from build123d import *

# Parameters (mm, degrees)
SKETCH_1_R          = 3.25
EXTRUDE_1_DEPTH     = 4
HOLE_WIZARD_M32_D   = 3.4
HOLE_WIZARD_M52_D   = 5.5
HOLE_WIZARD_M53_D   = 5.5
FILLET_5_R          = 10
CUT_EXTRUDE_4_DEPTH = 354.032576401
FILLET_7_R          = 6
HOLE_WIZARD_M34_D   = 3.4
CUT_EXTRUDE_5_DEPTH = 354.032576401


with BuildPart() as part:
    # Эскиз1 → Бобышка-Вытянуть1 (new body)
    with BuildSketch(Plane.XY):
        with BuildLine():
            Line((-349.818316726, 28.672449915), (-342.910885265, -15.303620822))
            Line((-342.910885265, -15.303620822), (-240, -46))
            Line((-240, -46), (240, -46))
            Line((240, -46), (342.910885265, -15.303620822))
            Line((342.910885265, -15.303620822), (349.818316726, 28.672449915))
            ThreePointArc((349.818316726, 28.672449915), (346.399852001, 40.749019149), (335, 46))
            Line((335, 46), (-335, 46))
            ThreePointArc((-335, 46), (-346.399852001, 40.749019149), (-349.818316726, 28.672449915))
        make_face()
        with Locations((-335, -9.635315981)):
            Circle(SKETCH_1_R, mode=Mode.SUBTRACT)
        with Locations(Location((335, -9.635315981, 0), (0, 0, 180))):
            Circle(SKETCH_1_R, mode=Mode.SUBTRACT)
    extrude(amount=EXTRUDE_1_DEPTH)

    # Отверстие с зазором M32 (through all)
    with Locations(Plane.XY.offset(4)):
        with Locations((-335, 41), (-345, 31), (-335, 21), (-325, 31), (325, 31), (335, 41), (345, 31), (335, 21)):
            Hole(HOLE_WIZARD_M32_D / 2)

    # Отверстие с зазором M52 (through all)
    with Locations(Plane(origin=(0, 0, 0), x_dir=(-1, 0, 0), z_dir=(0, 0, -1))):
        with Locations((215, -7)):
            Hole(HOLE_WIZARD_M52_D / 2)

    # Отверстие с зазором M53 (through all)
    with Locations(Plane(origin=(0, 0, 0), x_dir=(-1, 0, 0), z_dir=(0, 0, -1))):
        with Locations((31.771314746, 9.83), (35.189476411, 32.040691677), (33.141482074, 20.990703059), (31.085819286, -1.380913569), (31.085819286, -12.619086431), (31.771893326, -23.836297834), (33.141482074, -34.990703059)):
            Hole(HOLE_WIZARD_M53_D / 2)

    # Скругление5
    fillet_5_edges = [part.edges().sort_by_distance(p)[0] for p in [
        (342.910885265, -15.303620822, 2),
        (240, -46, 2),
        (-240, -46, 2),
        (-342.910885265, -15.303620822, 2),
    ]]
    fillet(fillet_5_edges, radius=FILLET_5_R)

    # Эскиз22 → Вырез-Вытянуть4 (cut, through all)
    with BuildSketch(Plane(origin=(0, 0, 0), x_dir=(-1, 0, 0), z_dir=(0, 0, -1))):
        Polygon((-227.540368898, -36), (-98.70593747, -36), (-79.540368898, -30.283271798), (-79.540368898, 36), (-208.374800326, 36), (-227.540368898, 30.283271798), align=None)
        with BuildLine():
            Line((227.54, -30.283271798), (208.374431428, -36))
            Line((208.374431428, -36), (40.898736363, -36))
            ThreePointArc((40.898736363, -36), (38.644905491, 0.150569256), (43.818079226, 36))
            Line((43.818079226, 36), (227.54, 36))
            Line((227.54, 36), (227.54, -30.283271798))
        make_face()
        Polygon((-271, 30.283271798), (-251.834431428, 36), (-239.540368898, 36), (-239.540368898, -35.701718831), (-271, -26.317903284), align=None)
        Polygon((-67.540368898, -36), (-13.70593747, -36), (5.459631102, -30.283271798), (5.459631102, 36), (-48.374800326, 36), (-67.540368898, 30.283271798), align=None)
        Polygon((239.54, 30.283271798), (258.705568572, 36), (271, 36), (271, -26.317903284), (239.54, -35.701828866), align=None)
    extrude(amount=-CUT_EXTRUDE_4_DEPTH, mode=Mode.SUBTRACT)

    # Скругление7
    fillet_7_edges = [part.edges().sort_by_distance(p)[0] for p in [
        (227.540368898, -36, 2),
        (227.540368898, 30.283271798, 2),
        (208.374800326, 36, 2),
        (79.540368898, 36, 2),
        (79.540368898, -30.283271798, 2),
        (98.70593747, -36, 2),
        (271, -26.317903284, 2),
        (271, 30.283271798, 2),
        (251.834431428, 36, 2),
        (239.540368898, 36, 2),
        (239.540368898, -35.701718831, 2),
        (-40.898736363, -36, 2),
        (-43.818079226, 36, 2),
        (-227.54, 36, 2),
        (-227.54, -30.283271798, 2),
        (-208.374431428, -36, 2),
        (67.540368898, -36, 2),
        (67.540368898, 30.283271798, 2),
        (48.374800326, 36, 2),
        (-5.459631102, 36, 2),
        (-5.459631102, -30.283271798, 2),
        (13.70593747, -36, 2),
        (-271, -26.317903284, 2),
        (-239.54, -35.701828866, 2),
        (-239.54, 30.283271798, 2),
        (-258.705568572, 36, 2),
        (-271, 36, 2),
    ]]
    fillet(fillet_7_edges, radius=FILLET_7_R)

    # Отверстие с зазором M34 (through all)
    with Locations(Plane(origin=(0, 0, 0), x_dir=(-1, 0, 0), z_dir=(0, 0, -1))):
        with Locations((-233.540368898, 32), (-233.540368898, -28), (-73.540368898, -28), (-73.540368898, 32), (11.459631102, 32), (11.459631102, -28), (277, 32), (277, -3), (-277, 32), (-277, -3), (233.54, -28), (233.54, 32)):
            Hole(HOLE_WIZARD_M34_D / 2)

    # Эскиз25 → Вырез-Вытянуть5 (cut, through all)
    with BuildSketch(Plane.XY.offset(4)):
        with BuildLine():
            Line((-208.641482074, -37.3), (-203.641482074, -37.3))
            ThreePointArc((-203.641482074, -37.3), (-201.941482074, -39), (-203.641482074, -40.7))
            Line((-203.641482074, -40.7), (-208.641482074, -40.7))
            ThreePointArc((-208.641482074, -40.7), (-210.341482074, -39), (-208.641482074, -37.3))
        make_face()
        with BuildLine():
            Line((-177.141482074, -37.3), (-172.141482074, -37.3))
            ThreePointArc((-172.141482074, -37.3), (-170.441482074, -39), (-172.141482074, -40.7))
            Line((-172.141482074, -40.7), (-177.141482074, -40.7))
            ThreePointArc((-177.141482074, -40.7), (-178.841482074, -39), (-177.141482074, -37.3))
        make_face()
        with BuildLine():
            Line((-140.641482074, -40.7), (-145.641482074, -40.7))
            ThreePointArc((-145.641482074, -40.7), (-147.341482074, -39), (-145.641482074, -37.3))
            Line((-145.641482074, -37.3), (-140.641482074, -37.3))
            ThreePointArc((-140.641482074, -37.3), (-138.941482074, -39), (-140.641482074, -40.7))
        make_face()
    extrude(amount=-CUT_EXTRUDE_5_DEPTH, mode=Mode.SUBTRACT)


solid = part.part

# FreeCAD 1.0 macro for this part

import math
import FreeCAD as App
import Part
import Sketcher
from FreeCAD import Vector


def edges_at(feature, points):
    """Names of the edges that pass closest to the given points."""
    edges = feature.Shape.Edges
    near = lambda p: min(range(len(edges)), key=lambda i: edges[i].distToShape(Part.Vertex(*p))[0])
    return sorted({f"Edge{near(p) + 1}" for p in points})


def add_polygon(sketch, points):
    """Adds a closed chain of lines whose ends are joined by coincident constraints."""
    first, n = sketch.GeometryCount, len(points)
    for a, b in zip(points, points[1:] + points[:1]):
        sketch.addGeometry(Part.LineSegment(App.Vector(*a, 0), App.Vector(*b, 0)), False)
    for i in range(n):
        sketch.addConstraint(Sketcher.Constraint("Coincident", first + i, 2, first + (i + 1) % n, 1))

doc = App.newDocument("Part")
body = doc.addObject("PartDesign::Body", "Body")

# Sketch on XY plane
sketch1 = body.newObject("Sketcher::SketchObject", "Sketch")
sketch1.AttachmentSupport = (doc.getObject("XY_Plane"), [""])
sketch1.MapMode = "FlatFace"
sketch1.addGeometry([
    Part.LineSegment(Vector(-349.818317, 28.67245, 0), Vector(-342.910885, -15.303621, 0)),  # 0
    Part.LineSegment(Vector(-342.910885, -15.303621, 0), Vector(-240, -46, 0)),  # 1
    Part.LineSegment(Vector(-240, -46, 0), Vector(240, -46, 0)),  # 2
    Part.LineSegment(Vector(240, -46, 0), Vector(342.910885, -15.303621, 0)),  # 3
    Part.LineSegment(Vector(342.910885, -15.303621, 0), Vector(349.818317, 28.67245, 0)),  # 4
    Part.ArcOfCircle(Part.Circle(Vector(335, 31, 0), Vector(0, 0, 1), 15), math.radians(-8.926656), math.radians(90)),  # 5
    Part.LineSegment(Vector(335, 46, 0), Vector(-335, 46, 0)),  # 6
    Part.ArcOfCircle(Part.Circle(Vector(-335, 31, 0), Vector(0, 0, 1), 15), math.radians(90), math.radians(188.926656)),  # 7
    Part.Circle(Vector(-335, -9.635316, 0), Vector(0, 0, 1), 3.25),  # 8
    Part.Circle(Vector(335, -9.635316, 0), Vector(0, 0, 1), 3.25),  # 9
], False)
sketch1.addConstraint([
    Sketcher.Constraint("Coincident", 0, 2, 1, 1),
    Sketcher.Constraint("Coincident", 1, 2, 2, 1),
    Sketcher.Constraint("Coincident", 2, 2, 3, 1),
    Sketcher.Constraint("Coincident", 3, 2, 4, 1),
    Sketcher.Constraint("Tangent", 4, 2, 5, 1),
    Sketcher.Constraint("Tangent", 5, 2, 6, 1),
    Sketcher.Constraint("Tangent", 6, 2, 7, 1),
    Sketcher.Constraint("Tangent", 7, 2, 0, 1),
    Sketcher.Constraint("Horizontal", 2),
    Sketcher.Constraint("Horizontal", 6),
    Sketcher.Constraint("Equal", 5, 7),
    Sketcher.Constraint("Equal", 8, 9),
    Sketcher.Constraint("Symmetric", 8, 3, 9, 3, -2),
    Sketcher.Constraint("Symmetric", 0, 2, 3, 2, -2),
    Sketcher.Constraint("Horizontal", 4, 2, 7, 2),
    Sketcher.Constraint("Vertical", 7, 3, 8, 3),
    Sketcher.Constraint("Equal", 1, 3),
    Sketcher.Constraint("Radius", 5, 15.0),
    Sketcher.Constraint("Diameter", 8, 6.5),
    Sketcher.Constraint("DistanceX", 2, 1, 2, 2, 480.0),
    Sketcher.Constraint("DistanceX", 6, 2, 6, 1, 670.0),
    Sketcher.Constraint("DistanceY", -1, 1, 5, 3, 31.0),
    Sketcher.Constraint("DistanceY", 1, 2, -1, 1, 46.0),
    Sketcher.Constraint("Distance", 0, 44.515249),
    Sketcher.Constraint("DistanceY", 0, 2, -1, 1, 15.303621),
    Sketcher.Constraint("DistanceY", 8, 3, -1, 1, 9.635316),
])
pad1 = body.newObject("PartDesign::Pad", "Pad")
pad1.Profile = sketch1
pad1.Length = 4

# Sketch on XY plane
sketch2 = body.newObject("Sketcher::SketchObject", "Sketch001")
sketch2.AttachmentSupport = (doc.getObject("XY_Plane"), [""])
sketch2.MapMode = "FlatFace"
sketch2.AttachmentOffset = App.Placement(Vector(0, 0, 4), App.Rotation())
sketch2.addGeometry([
    Part.Circle(Vector(-335, 41, 0), Vector(0, 0, 1), 1.7),  # 0
    Part.Circle(Vector(-345, 31, 0), Vector(0, 0, 1), 1.7),  # 1
    Part.Circle(Vector(-335, 21, 0), Vector(0, 0, 1), 1.7),  # 2
    Part.Circle(Vector(-325, 31, 0), Vector(0, 0, 1), 1.7),  # 3
    Part.Circle(Vector(325, 31, 0), Vector(0, 0, 1), 1.7),  # 4
    Part.Circle(Vector(335, 41, 0), Vector(0, 0, 1), 1.7),  # 5
    Part.Circle(Vector(345, 31, 0), Vector(0, 0, 1), 1.7),  # 6
    Part.Circle(Vector(335, 21, 0), Vector(0, 0, 1), 1.7),  # 7
], False)
sketch2.addConstraint([
    Sketcher.Constraint("Equal", 0, 1),
    Sketcher.Constraint("Equal", 1, 2),
    Sketcher.Constraint("Equal", 2, 3),
    Sketcher.Constraint("Equal", 3, 4),
    Sketcher.Constraint("Equal", 4, 5),
    Sketcher.Constraint("Equal", 5, 6),
    Sketcher.Constraint("Equal", 6, 7),
    Sketcher.Constraint("Symmetric", 3, 3, 4, 3, -2),
    Sketcher.Constraint("Symmetric", 0, 3, 5, 3, -2),
    Sketcher.Constraint("Symmetric", 1, 3, 6, 3, -2),
    Sketcher.Constraint("Symmetric", 2, 3, 7, 3, -2),
    Sketcher.Constraint("Horizontal", 1, 3, 3, 3),
    Sketcher.Constraint("Vertical", 0, 3, 2, 3),
    Sketcher.Constraint("Diameter", 0, 3.4),
    Sketcher.Constraint("DistanceX", 0, 3, -1, 1, 335.0),
    Sketcher.Constraint("DistanceY", -1, 1, 0, 3, 41.0),
    Sketcher.Constraint("DistanceX", 1, 3, -1, 1, 345.0),
    Sketcher.Constraint("DistanceY", -1, 1, 1, 3, 31.0),
    Sketcher.Constraint("DistanceY", -1, 1, 2, 3, 21.0),
    Sketcher.Constraint("DistanceX", 3, 3, -1, 1, 325.0),
])
doc.recompute()
hole = body.newObject("PartDesign::Hole", "Hole")
hole.Profile = sketch2
hole.ThreadType = "None"
hole.Diameter = 3.4
hole.DepthType = "ThroughAll"

# Sketch on XY plane
sketch3 = body.newObject("Sketcher::SketchObject", "Sketch002")
sketch3.AttachmentSupport = (doc.getObject("XY_Plane"), [""])
sketch3.MapMode = "FlatFace"
sketch3.addGeometry(Part.Circle(Vector(-215, -7, 0), Vector(0, 0, 1), 2.75), False)
sketch3.addConstraint([
    Sketcher.Constraint("Diameter", 0, 5.5),
    Sketcher.Constraint("DistanceX", 0, 3, -1, 1, 215.0),
    Sketcher.Constraint("DistanceY", 0, 3, -1, 1, 7.0),
])
doc.recompute()
hole2 = body.newObject("PartDesign::Hole", "Hole001")
hole2.Profile = sketch3
hole2.ThreadType = "None"
hole2.Diameter = 5.5
hole2.DepthType = "ThroughAll"
hole2.Reversed = True

# Sketch on XY plane
sketch4 = body.newObject("Sketcher::SketchObject", "Sketch003")
sketch4.AttachmentSupport = (doc.getObject("XY_Plane"), [""])
sketch4.MapMode = "FlatFace"
sketch4.addGeometry([
    Part.Circle(Vector(-31.771315, 9.83, 0), Vector(0, 0, 1), 2.75),  # 0
    Part.Circle(Vector(-35.189476, 32.040692, 0), Vector(0, 0, 1), 2.75),  # 1
    Part.Circle(Vector(-33.141482, 20.990703, 0), Vector(0, 0, 1), 2.75),  # 2
    Part.Circle(Vector(-31.085819, -1.380914, 0), Vector(0, 0, 1), 2.75),  # 3
    Part.Circle(Vector(-31.085819, -12.619086, 0), Vector(0, 0, 1), 2.75),  # 4
    Part.Circle(Vector(-31.771893, -23.836298, 0), Vector(0, 0, 1), 2.75),  # 5
    Part.Circle(Vector(-33.141482, -34.990703, 0), Vector(0, 0, 1), 2.75),  # 6
], False)
sketch4.addConstraint([
    Sketcher.Constraint("Equal", 0, 1),
    Sketcher.Constraint("Equal", 1, 2),
    Sketcher.Constraint("Equal", 2, 3),
    Sketcher.Constraint("Equal", 3, 4),
    Sketcher.Constraint("Equal", 4, 5),
    Sketcher.Constraint("Equal", 5, 6),
    Sketcher.Constraint("Vertical", 3, 3, 4, 3),
    Sketcher.Constraint("Vertical", 2, 3, 6, 3),
    Sketcher.Constraint("Diameter", 0, 5.5),
    Sketcher.Constraint("DistanceY", -1, 1, 0, 3, 9.83),
    Sketcher.Constraint("DistanceY", 5, 3, 2, 3, 44.827001),
    Sketcher.Constraint("DistanceY", -1, 1, 1, 3, 32.040692),
    Sketcher.Constraint("DistanceX", 3, 3, -1, 1, 31.085819),
    Sketcher.Constraint("DistanceX", 1, 3, 0, 3, 3.418162),
    Sketcher.Constraint("DistanceY", 2, 3, 1, 3, 11.049989),
    Sketcher.Constraint("DistanceY", 4, 3, 2, 3, 33.609789),
    Sketcher.Constraint("DistanceX", 5, 3, 0, 3, 0.000579),
    Sketcher.Constraint("DistanceX", 2, 3, 5, 3, 1.369589),
    Sketcher.Constraint("DistanceY", 6, 3, 3, 3, 33.609789),
    Sketcher.Constraint("DistanceX", 0, 3, -1, 1, 31.771315),
    Sketcher.Constraint("DistanceY", 3, 3, -1, 1, 1.380914),
])
doc.recompute()
hole3 = body.newObject("PartDesign::Hole", "Hole002")
hole3.Profile = sketch4
hole3.ThreadType = "None"
hole3.Diameter = 5.5
hole3.DepthType = "ThroughAll"
hole3.Reversed = True
doc.recompute()

fillet = body.newObject("PartDesign::Fillet", "Fillet")
fillet.Base = (hole3, edges_at(hole3, [
    (342.911, -15.304, 2),
    (240, -46, 2),
    (-240, -46, 2),
    (-342.911, -15.304, 2),
]))
fillet.Radius = 10

# Sketch on XY plane
sketch5 = body.newObject("Sketcher::SketchObject", "Sketch004")
sketch5.AttachmentSupport = (doc.getObject("XY_Plane"), [""])
sketch5.MapMode = "FlatFace"
add_polygon(sketch5, [(227.540369, -36), (98.705937, -36), (79.540369, -30.283272), (79.540369, 36), (208.3748, 36), (227.540369, 30.283272)])  # lines 0-5
sketch5.addGeometry(Part.LineSegment(Vector(-208.374431, -36, 0), Vector(-227.54, -30.283272, 0)), False)  # 6
sketch5.addGeometry(Part.LineSegment(Vector(-227.54, -30.283272, 0), Vector(-227.54, 36, 0)), False)  # 7
sketch5.addGeometry(Part.LineSegment(Vector(-227.54, 36, 0), Vector(-43.818079, 36, 0)), False)  # 8
sketch5.addGeometry(Part.ArcOfCircle(Part.Circle(Vector(-215, -7, 0), Vector(0, 0, 1), 176.5), math.radians(-9.456918), math.radians(14.100653)), False)  # 9
sketch5.addGeometry(Part.LineSegment(Vector(-40.898736, -36, 0), Vector(-208.374431, -36, 0)), False)  # 10
add_polygon(sketch5, [(251.834431, 36), (271, 30.283272), (271, -26.317903), (239.540369, -35.701719), (239.540369, 36)])  # lines 11-15
add_polygon(sketch5, [(67.540369, -36), (13.705937, -36), (-5.459631, -30.283272), (-5.459631, 36), (48.3748, 36), (67.540369, 30.283272)])  # lines 16-21
add_polygon(sketch5, [(-258.705569, 36), (-239.54, 30.283272), (-239.54, -35.701829), (-271, -26.317903), (-271, 36)])  # lines 22-26
sketch5.addConstraint([
    Sketcher.Constraint("Coincident", 6, 2, 7, 1),
    Sketcher.Constraint("Coincident", 7, 2, 8, 1),
    Sketcher.Constraint("Coincident", 8, 2, 9, 2),
    Sketcher.Constraint("Coincident", 9, 1, 10, 1),
    Sketcher.Constraint("Coincident", 10, 2, 6, 1),
    Sketcher.Constraint("Horizontal", 0),
    Sketcher.Constraint("Vertical", 2),
    Sketcher.Constraint("Horizontal", 3),
    Sketcher.Constraint("Vertical", 5),
    Sketcher.Constraint("Vertical", 7),
    Sketcher.Constraint("Horizontal", 8),
    Sketcher.Constraint("Horizontal", 10),
    Sketcher.Constraint("Vertical", 12),
    Sketcher.Constraint("Vertical", 14),
    Sketcher.Constraint("Horizontal", 15),
    Sketcher.Constraint("Horizontal", 16),
    Sketcher.Constraint("Vertical", 18),
    Sketcher.Constraint("Horizontal", 19),
    Sketcher.Constraint("Vertical", 21),
    Sketcher.Constraint("Vertical", 23),
    Sketcher.Constraint("Vertical", 25),
    Sketcher.Constraint("Horizontal", 26),
    Sketcher.Constraint("Symmetric", 12, 2, 24, 2, -2),
    Sketcher.Constraint("Parallel", 1, 4),
    Sketcher.Constraint("Parallel", 4, 6),
    Sketcher.Constraint("Parallel", 6, 11),
    Sketcher.Constraint("Parallel", 11, 17),
    Sketcher.Constraint("Parallel", 17, 20),
    Sketcher.Constraint("Parallel", 20, 22),
    Sketcher.Constraint("Parallel", 22, 24),
    Sketcher.Constraint("Horizontal", 1, 2, 6, 2),
    Sketcher.Constraint("Horizontal", 3, 2, 7, 2),
    Sketcher.Constraint("Horizontal", 4, 2, 11, 2),
    Sketcher.Constraint("Horizontal", 8, 2, 14, 2),
    Sketcher.Constraint("Horizontal", 10, 2, 16, 2),
    Sketcher.Constraint("Horizontal", 6, 2, 17, 2),
    Sketcher.Constraint("Horizontal", 15, 2, 18, 2),
    Sketcher.Constraint("Horizontal", 11, 2, 20, 2),
    Sketcher.Constraint("Horizontal", 20, 2, 22, 2),
    Sketcher.Constraint("Horizontal", 19, 2, 25, 2),
    Sketcher.Constraint("Equal", 0, 3),
    Sketcher.Constraint("Equal", 16, 19),
    Sketcher.Constraint("Radius", 9, 176.5),
    Sketcher.Constraint("Distance", 1, 20.0),
    Sketcher.Constraint("DistanceX", 9, 3, -1, 1, 215.0),
    Sketcher.Constraint("DistanceY", 9, 3, -1, 1, 7.0),
    Sketcher.Constraint("DistanceY", 0, 2, -1, 1, 36.0),
    Sketcher.Constraint("DistanceY", -1, 1, 2, 2, 36.0),
    Sketcher.Constraint("DistanceX", -1, 1, 11, 2, 271.0),
    Sketcher.Constraint("DistanceX", 2, 2, 4, 2, 148.0),
    Sketcher.Constraint("DistanceX", 5, 2, 13, 2, 12.0),
    Sketcher.Constraint("DistanceX", 16, 2, 0, 2, 85.0),
    Sketcher.Constraint("DistanceX", 20, 2, 2, 2, 12.0),
    Sketcher.Constraint("DistanceX", 22, 2, 7, 2, 12.0),
    Sketcher.Constraint("DistanceX", 6, 2, -1, 1, 227.54),
    Sketcher.Constraint("DistanceY", 23, 2, 23, 1, 65.985101),
    Sketcher.Constraint("DistanceX", 0, 2, 0, 1, 128.834431),
    Sketcher.Constraint("DistanceY", 14, 1, 14, 2, 71.701719),
    Sketcher.Constraint("DistanceX", -1, 1, 3, 2, 208.3748),
])
pocket1 = body.newObject("PartDesign::Pocket", "Pocket")
pocket1.Profile = sketch5
pocket1.Type = "ThroughAll"
pocket1.Reversed = True
doc.recompute()

fillet2 = body.newObject("PartDesign::Fillet", "Fillet001")
fillet2.Base = (pocket1, edges_at(pocket1, [
    (227.54, -36, 2),
    (227.54, 30.283, 2),
    (208.375, 36, 2),
    (79.54, 36, 2),
    (79.54, -30.283, 2),
    (98.706, -36, 2),
    (271, -26.318, 2),
    (271, 30.283, 2),
    (251.834, 36, 2),
    (239.54, 36, 2),
    (239.54, -35.702, 2),
    (-40.899, -36, 2),
    (-43.818, 36, 2),
    (-227.54, 36, 2),
    (-227.54, -30.283, 2),
    (-208.374, -36, 2),
    (67.54, -36, 2),
    (67.54, 30.283, 2),
    (48.375, 36, 2),
    (-5.46, 36, 2),
    (-5.46, -30.283, 2),
    (13.706, -36, 2),
    (-271, -26.318, 2),
    (-239.54, -35.702, 2),
    (-239.54, 30.283, 2),
    (-258.706, 36, 2),
    (-271, 36, 2),
]))
fillet2.Radius = 6

# Sketch on XY plane
sketch6 = body.newObject("Sketcher::SketchObject", "Sketch005")
sketch6.AttachmentSupport = (doc.getObject("XY_Plane"), [""])
sketch6.MapMode = "FlatFace"
sketch6.addGeometry([
    Part.Circle(Vector(233.540369, 32, 0), Vector(0, 0, 1), 1.7),  # 0
    Part.Circle(Vector(233.540369, -28, 0), Vector(0, 0, 1), 1.7),  # 1
    Part.Circle(Vector(73.540369, -28, 0), Vector(0, 0, 1), 1.7),  # 2
    Part.Circle(Vector(73.540369, 32, 0), Vector(0, 0, 1), 1.7),  # 3
    Part.Circle(Vector(-11.459631, 32, 0), Vector(0, 0, 1), 1.7),  # 4
    Part.Circle(Vector(-11.459631, -28, 0), Vector(0, 0, 1), 1.7),  # 5
    Part.Circle(Vector(-277, 32, 0), Vector(0, 0, 1), 1.7),  # 6
    Part.Circle(Vector(-277, -3, 0), Vector(0, 0, 1), 1.7),  # 7
    Part.Circle(Vector(277, 32, 0), Vector(0, 0, 1), 1.7),  # 8
    Part.Circle(Vector(277, -3, 0), Vector(0, 0, 1), 1.7),  # 9
    Part.Circle(Vector(-233.54, -28, 0), Vector(0, 0, 1), 1.7),  # 10
    Part.Circle(Vector(-233.54, 32, 0), Vector(0, 0, 1), 1.7),  # 11
], False)
sketch6.addConstraint([
    Sketcher.Constraint("Equal", 0, 1),
    Sketcher.Constraint("Equal", 1, 2),
    Sketcher.Constraint("Equal", 2, 3),
    Sketcher.Constraint("Equal", 3, 4),
    Sketcher.Constraint("Equal", 4, 5),
    Sketcher.Constraint("Equal", 5, 6),
    Sketcher.Constraint("Equal", 6, 7),
    Sketcher.Constraint("Equal", 7, 8),
    Sketcher.Constraint("Equal", 8, 9),
    Sketcher.Constraint("Equal", 9, 10),
    Sketcher.Constraint("Equal", 10, 11),
    Sketcher.Constraint("Symmetric", 6, 3, 8, 3, -2),
    Sketcher.Constraint("Symmetric", 7, 3, 9, 3, -2),
    Sketcher.Constraint("Horizontal", 1, 3, 2, 3),
    Sketcher.Constraint("Horizontal", 0, 3, 3, 3),
    Sketcher.Constraint("Horizontal", 3, 3, 4, 3),
    Sketcher.Constraint("Horizontal", 2, 3, 5, 3),
    Sketcher.Constraint("Horizontal", 4, 3, 6, 3),
    Sketcher.Constraint("Horizontal", 5, 3, 10, 3),
    Sketcher.Constraint("Horizontal", 8, 3, 11, 3),
    Sketcher.Constraint("Vertical", 0, 3, 1, 3),
    Sketcher.Constraint("Vertical", 2, 3, 3, 3),
    Sketcher.Constraint("Vertical", 4, 3, 5, 3),
    Sketcher.Constraint("Vertical", 6, 3, 7, 3),
    Sketcher.Constraint("Vertical", 10, 3, 11, 3),
    Sketcher.Constraint("Diameter", 0, 3.4),
    Sketcher.Constraint("DistanceY", -1, 1, 0, 3, 32.0),
    Sketcher.Constraint("DistanceY", 1, 3, -1, 1, 28.0),
    Sketcher.Constraint("DistanceX", 6, 3, -1, 1, 277.0),
    Sketcher.Constraint("DistanceY", 7, 3, -1, 1, 3.0),
    Sketcher.Constraint("DistanceX", 2, 3, 1, 3, 160.0),
    Sketcher.Constraint("DistanceX", 4, 3, 3, 3, 85.0),
    Sketcher.Constraint("DistanceX", 10, 3, -1, 1, 233.54),
    Sketcher.Constraint("DistanceX", -1, 1, 0, 3, 233.540369),
])
doc.recompute()
hole4 = body.newObject("PartDesign::Hole", "Hole003")
hole4.Profile = sketch6
hole4.ThreadType = "None"
hole4.Diameter = 3.4
hole4.DepthType = "ThroughAll"
hole4.Reversed = True

# Sketch on XY plane
sketch7 = body.newObject("Sketcher::SketchObject", "Sketch006")
sketch7.AttachmentSupport = (doc.getObject("XY_Plane"), [""])
sketch7.MapMode = "FlatFace"
sketch7.AttachmentOffset = App.Placement(Vector(0, 0, 4), App.Rotation())
sketch7.addGeometry([
    Part.LineSegment(Vector(-203.641482, -37.3, 0), Vector(-208.641482, -37.3, 0)),  # 0
    Part.ArcOfCircle(Part.Circle(Vector(-208.641482, -39, 0), Vector(0, 0, 1), 1.7), math.radians(90), math.radians(270)),  # 1
    Part.LineSegment(Vector(-208.641482, -40.7, 0), Vector(-203.641482, -40.7, 0)),  # 2
    Part.ArcOfCircle(Part.Circle(Vector(-203.641482, -39, 0), Vector(0, 0, 1), 1.7), math.radians(-90), math.radians(90)),  # 3
    Part.LineSegment(Vector(-172.141482, -37.3, 0), Vector(-177.141482, -37.3, 0)),  # 4
    Part.ArcOfCircle(Part.Circle(Vector(-177.141482, -39, 0), Vector(0, 0, 1), 1.7), math.radians(90), math.radians(270)),  # 5
    Part.LineSegment(Vector(-177.141482, -40.7, 0), Vector(-172.141482, -40.7, 0)),  # 6
    Part.ArcOfCircle(Part.Circle(Vector(-172.141482, -39, 0), Vector(0, 0, 1), 1.7), math.radians(-90), math.radians(90)),  # 7
    Part.LineSegment(Vector(-145.641482, -40.7, 0), Vector(-140.641482, -40.7, 0)),  # 8
    Part.ArcOfCircle(Part.Circle(Vector(-140.641482, -39, 0), Vector(0, 0, 1), 1.7), math.radians(-90), math.radians(90)),  # 9
    Part.LineSegment(Vector(-140.641482, -37.3, 0), Vector(-145.641482, -37.3, 0)),  # 10
    Part.ArcOfCircle(Part.Circle(Vector(-145.641482, -39, 0), Vector(0, 0, 1), 1.7), math.radians(90), math.radians(270)),  # 11
], False)
sketch7.addConstraint([
    Sketcher.Constraint("Tangent", 0, 2, 1, 1),
    Sketcher.Constraint("Tangent", 1, 2, 2, 1),
    Sketcher.Constraint("Tangent", 2, 2, 3, 1),
    Sketcher.Constraint("Tangent", 3, 2, 0, 1),
    Sketcher.Constraint("Tangent", 4, 2, 5, 1),
    Sketcher.Constraint("Tangent", 5, 2, 6, 1),
    Sketcher.Constraint("Tangent", 6, 2, 7, 1),
    Sketcher.Constraint("Tangent", 7, 2, 4, 1),
    Sketcher.Constraint("Tangent", 8, 2, 9, 1),
    Sketcher.Constraint("Tangent", 9, 2, 10, 1),
    Sketcher.Constraint("Tangent", 10, 2, 11, 1),
    Sketcher.Constraint("Tangent", 11, 2, 8, 1),
    Sketcher.Constraint("Horizontal", 0),
    Sketcher.Constraint("Horizontal", 2),
    Sketcher.Constraint("Horizontal", 4),
    Sketcher.Constraint("Horizontal", 6),
    Sketcher.Constraint("Horizontal", 8),
    Sketcher.Constraint("Horizontal", 10),
    Sketcher.Constraint("Equal", 3, 5),
    Sketcher.Constraint("Equal", 7, 9),
    Sketcher.Constraint("Horizontal", 3, 3, 5, 3),
    Sketcher.Constraint("Horizontal", 7, 3, 9, 3),
    Sketcher.Constraint("Equal", 2, 4),
    Sketcher.Constraint("Equal", 6, 8),
    Sketcher.Constraint("Radius", 1, 1.7),
    Sketcher.Constraint("DistanceX", 0, 2, 0, 1, 5.0),
    Sketcher.Constraint("DistanceY", 1, 3, -1, 1, 39.0),
    Sketcher.Constraint("DistanceX", 3, 3, 9, 3, 63.0),
    Sketcher.Constraint("DistanceX", 3, 3, 5, 3, 26.5),
    Sketcher.Constraint("DistanceX", 1, 3, -1, 1, 208.641482),
])
pocket2 = body.newObject("PartDesign::Pocket", "Pocket001")
pocket2.Profile = sketch7
pocket2.Type = "ThroughAll"

doc.recompute()
